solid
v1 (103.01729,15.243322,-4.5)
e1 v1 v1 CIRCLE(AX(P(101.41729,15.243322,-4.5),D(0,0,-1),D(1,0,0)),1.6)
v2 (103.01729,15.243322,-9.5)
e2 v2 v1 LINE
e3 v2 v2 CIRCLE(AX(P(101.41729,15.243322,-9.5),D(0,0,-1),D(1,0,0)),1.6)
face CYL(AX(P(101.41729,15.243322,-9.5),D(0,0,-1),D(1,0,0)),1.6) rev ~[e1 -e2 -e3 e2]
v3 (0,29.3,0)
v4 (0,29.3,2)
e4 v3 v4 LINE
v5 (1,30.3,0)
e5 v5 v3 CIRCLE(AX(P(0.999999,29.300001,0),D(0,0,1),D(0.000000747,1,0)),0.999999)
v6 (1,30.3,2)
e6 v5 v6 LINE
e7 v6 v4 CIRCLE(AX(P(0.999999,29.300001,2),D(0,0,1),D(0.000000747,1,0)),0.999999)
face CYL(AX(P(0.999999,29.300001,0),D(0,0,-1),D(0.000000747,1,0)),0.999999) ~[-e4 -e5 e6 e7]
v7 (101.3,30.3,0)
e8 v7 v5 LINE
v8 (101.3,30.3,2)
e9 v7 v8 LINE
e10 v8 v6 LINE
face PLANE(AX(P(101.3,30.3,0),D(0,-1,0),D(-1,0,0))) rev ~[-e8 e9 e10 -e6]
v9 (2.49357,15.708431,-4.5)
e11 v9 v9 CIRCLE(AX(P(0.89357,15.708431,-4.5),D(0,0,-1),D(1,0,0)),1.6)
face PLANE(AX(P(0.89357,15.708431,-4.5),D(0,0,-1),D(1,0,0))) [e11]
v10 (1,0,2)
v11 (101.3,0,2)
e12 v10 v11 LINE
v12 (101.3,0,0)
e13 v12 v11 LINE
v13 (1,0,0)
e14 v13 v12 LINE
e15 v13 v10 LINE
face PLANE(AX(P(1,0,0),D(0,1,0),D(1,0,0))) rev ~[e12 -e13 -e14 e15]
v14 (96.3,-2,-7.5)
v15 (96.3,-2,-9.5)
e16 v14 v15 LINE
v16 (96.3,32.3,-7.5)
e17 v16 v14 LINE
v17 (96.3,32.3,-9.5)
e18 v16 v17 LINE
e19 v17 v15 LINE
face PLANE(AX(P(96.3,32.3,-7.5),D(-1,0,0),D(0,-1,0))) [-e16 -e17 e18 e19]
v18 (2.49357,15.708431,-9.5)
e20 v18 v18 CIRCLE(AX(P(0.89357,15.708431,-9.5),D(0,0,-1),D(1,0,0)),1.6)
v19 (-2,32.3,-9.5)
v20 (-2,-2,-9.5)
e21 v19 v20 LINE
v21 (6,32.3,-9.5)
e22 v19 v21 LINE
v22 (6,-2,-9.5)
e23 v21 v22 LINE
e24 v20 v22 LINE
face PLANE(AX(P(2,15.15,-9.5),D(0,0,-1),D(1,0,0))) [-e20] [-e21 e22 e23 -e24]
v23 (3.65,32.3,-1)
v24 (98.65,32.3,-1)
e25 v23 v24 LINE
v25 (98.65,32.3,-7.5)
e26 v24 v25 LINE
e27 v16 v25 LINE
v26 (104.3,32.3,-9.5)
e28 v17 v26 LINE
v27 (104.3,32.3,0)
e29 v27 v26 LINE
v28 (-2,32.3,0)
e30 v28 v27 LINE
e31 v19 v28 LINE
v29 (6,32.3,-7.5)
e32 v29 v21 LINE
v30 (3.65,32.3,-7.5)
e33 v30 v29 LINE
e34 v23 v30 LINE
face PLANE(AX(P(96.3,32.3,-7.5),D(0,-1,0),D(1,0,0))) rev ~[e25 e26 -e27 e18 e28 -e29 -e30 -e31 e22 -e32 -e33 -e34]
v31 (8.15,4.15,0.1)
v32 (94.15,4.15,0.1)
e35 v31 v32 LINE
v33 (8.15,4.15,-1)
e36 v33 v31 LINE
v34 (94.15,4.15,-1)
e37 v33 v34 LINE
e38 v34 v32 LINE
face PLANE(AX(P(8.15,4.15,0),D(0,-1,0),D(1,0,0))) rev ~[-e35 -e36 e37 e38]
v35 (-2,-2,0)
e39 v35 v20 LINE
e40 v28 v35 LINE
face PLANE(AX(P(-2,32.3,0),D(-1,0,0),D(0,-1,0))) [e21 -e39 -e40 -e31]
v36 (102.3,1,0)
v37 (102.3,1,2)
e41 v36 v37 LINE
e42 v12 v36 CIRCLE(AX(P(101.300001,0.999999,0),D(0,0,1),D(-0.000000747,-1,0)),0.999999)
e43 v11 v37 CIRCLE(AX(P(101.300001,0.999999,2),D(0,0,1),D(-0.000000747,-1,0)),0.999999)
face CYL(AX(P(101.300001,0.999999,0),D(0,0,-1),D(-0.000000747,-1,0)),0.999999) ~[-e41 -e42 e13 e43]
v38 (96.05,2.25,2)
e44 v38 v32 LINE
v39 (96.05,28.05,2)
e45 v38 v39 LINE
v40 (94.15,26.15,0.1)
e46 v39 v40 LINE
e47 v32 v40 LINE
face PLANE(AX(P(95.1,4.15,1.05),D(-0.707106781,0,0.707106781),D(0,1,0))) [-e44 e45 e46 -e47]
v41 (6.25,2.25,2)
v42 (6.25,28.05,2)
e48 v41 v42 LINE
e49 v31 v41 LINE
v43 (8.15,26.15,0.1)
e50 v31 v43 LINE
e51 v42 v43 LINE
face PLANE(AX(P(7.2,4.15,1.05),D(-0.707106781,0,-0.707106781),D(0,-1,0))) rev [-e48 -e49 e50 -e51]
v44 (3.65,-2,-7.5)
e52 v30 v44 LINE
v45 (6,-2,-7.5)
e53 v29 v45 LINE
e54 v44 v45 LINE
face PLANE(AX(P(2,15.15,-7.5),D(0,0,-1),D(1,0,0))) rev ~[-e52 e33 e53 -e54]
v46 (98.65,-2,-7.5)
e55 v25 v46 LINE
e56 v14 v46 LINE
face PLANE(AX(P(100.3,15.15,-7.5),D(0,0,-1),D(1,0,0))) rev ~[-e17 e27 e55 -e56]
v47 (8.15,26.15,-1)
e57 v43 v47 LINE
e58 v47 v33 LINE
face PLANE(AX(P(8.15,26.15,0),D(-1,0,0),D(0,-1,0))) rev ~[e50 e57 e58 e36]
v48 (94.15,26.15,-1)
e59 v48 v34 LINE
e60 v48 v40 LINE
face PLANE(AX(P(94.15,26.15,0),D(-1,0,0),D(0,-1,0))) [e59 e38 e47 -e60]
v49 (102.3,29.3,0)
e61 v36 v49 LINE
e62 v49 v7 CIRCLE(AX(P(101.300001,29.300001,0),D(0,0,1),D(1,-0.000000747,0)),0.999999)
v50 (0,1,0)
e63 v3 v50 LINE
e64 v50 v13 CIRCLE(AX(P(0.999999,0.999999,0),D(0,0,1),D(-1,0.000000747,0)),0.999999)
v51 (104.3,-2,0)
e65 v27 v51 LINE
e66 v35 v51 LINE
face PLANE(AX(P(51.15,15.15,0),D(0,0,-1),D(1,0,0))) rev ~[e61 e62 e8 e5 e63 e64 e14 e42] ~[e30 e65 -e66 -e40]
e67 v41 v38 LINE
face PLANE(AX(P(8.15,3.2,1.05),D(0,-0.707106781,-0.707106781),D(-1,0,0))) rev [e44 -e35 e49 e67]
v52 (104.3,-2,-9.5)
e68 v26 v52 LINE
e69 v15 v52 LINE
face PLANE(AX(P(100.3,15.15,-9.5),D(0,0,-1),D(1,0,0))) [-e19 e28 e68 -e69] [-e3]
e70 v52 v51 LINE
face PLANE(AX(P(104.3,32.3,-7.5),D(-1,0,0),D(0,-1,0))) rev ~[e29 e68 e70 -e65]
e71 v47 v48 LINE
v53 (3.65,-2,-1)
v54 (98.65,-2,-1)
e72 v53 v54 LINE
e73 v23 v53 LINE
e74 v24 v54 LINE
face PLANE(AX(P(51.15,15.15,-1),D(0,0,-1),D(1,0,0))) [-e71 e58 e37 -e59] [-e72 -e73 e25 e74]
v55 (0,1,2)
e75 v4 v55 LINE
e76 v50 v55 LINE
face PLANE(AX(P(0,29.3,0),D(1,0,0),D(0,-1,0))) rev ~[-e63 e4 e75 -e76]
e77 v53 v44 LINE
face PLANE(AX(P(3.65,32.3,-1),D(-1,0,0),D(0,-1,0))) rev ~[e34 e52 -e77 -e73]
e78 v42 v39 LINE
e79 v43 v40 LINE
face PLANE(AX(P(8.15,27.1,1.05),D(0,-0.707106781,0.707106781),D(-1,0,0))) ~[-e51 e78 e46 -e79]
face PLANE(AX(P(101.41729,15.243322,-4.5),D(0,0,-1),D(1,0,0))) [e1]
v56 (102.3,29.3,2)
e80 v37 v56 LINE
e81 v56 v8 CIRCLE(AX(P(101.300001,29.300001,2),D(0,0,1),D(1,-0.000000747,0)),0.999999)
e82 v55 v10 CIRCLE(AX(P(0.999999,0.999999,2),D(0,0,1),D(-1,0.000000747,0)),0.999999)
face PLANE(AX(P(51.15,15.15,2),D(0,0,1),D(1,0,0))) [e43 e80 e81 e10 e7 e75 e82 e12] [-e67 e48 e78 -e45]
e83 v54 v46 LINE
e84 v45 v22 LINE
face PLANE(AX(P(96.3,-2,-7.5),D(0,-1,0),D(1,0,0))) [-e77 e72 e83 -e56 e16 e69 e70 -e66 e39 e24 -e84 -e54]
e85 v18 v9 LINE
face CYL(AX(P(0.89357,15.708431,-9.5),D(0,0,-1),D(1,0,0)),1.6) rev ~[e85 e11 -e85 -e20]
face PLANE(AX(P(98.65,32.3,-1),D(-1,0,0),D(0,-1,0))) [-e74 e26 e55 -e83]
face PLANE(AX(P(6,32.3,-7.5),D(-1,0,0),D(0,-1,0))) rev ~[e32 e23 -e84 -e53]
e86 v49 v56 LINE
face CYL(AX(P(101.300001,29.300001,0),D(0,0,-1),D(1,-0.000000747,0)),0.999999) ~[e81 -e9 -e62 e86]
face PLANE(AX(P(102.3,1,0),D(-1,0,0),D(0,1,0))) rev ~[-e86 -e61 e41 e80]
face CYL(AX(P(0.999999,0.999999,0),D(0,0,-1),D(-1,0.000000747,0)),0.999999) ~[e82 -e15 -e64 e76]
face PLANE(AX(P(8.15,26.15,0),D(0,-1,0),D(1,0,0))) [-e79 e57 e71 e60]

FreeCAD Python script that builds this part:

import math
import FreeCAD as App
import Part
import Sketcher
Q = App.Units.Quantity


def edges_at(feature, points):
    """Names of the edges that pass closest to the given points."""
    edges = feature.Shape.Edges
    near = lambda p: min(range(len(edges)), key=lambda i: edges[i].distToShape(Part.Vertex(*p))[0])
    return sorted({f"Edge{near(p) + 1}" for p in points})

doc = App.newDocument("Part")
body = doc.addObject("PartDesign::Body", "Body")

# Sketch on XY plane
sketch1 = body.newObject("Sketcher::SketchObject", "Sketch")
sketch1.AttachmentSupport = (doc.getObject("XY_Plane"), [""])
sketch1.MapMode = "FlatFace"
sketch1.addGeometry(Part.LineSegment(App.Vector(1, 0, 0), App.Vector(101.3, 0, 0)), False)
sketch1.addGeometry(Part.ArcOfCircle(Part.Circle(App.Vector(101.3, 1, 0), App.Vector(0, 0, 1), 1), math.radians(-90), math.radians(0)), False)
sketch1.addGeometry(Part.LineSegment(App.Vector(102.3, 1, 0), App.Vector(102.3, 29.3, 0)), False)
sketch1.addGeometry(Part.ArcOfCircle(Part.Circle(App.Vector(101.3, 29.3, 0), App.Vector(0, 0, 1), 1), math.radians(0), math.radians(90)), False)
sketch1.addGeometry(Part.LineSegment(App.Vector(101.3, 30.3, 0), App.Vector(1, 30.3, 0)), False)
sketch1.addGeometry(Part.ArcOfCircle(Part.Circle(App.Vector(1, 29.3, 0), App.Vector(0, 0, 1), 1), math.radians(90), math.radians(180)), False)
sketch1.addGeometry(Part.LineSegment(App.Vector(0, 29.3, 0), App.Vector(0, 1, 0)), False)
sketch1.addGeometry(Part.ArcOfCircle(Part.Circle(App.Vector(1, 1, 0), App.Vector(0, 0, 1), 1), math.radians(180), math.radians(270)), False)
sketch1.addConstraint(Sketcher.Constraint("Tangent", 0, 2, 1, 1))
sketch1.addConstraint(Sketcher.Constraint("Tangent", 1, 2, 2, 1))
sketch1.addConstraint(Sketcher.Constraint("Tangent", 2, 2, 3, 1))
sketch1.addConstraint(Sketcher.Constraint("Tangent", 3, 2, 4, 1))
sketch1.addConstraint(Sketcher.Constraint("Tangent", 4, 2, 5, 1))
sketch1.addConstraint(Sketcher.Constraint("Tangent", 5, 2, 6, 1))
sketch1.addConstraint(Sketcher.Constraint("Tangent", 6, 2, 7, 1))
sketch1.addConstraint(Sketcher.Constraint("Tangent", 7, 2, 0, 1))
sketch1.addConstraint(Sketcher.Constraint("Horizontal", 0))
sketch1.addConstraint(Sketcher.Constraint("Vertical", 2))
sketch1.addConstraint(Sketcher.Constraint("Horizontal", 4))
sketch1.addConstraint(Sketcher.Constraint("Vertical", 6))
sketch1.addConstraint(Sketcher.Constraint("Equal", 1, 3))
sketch1.addConstraint(Sketcher.Constraint("Equal", 3, 5))
sketch1.addConstraint(Sketcher.Constraint("Equal", 5, 7))
sketch1.addConstraint(Sketcher.Constraint("PointOnObject", 0, 2, -1))
sketch1.addConstraint(Sketcher.Constraint("PointOnObject", 5, 2, -2))
sketch1.addConstraint(Sketcher.Constraint("Radius", 1, Q("0.999999 mm")))
sketch1.addConstraint(Sketcher.Constraint("DistanceX", 0, 1, 0, 2, Q("100.3 mm")))
sketch1.addConstraint(Sketcher.Constraint("DistanceY", 2, 1, 2, 2, Q("28.3 mm")))
pad1 = body.newObject("PartDesign::Pad", "Pad")
pad1.Profile = sketch1
pad1.Length = 2

# Sketch on XY plane
sketch2 = body.newObject("Sketcher::SketchObject", "Sketch001")
sketch2.AttachmentSupport = (doc.getObject("XY_Plane"), [""])
sketch2.MapMode = "FlatFace"
sketch2.AttachmentOffset = App.Placement(App.Vector(0, 0, 2), App.Rotation())
sketch2.addGeometry(Part.LineSegment(App.Vector(8, 26, 0), App.Vector(8, 4, 0)), False)
sketch2.addGeometry(Part.LineSegment(App.Vector(8, 4, 0), App.Vector(94, 4, 0)), False)
sketch2.addGeometry(Part.LineSegment(App.Vector(94, 4, 0), App.Vector(94, 26, 0)), False)
sketch2.addGeometry(Part.LineSegment(App.Vector(94, 26, 0), App.Vector(8, 26, 0)), False)
sketch2.addConstraint(Sketcher.Constraint("Coincident", 0, 2, 1, 1))
sketch2.addConstraint(Sketcher.Constraint("Coincident", 1, 2, 2, 1))
sketch2.addConstraint(Sketcher.Constraint("Coincident", 2, 2, 3, 1))
sketch2.addConstraint(Sketcher.Constraint("Coincident", 3, 2, 0, 1))
sketch2.addConstraint(Sketcher.Constraint("Vertical", 0))
sketch2.addConstraint(Sketcher.Constraint("Horizontal", 1))
sketch2.addConstraint(Sketcher.Constraint("Vertical", 2))
sketch2.addConstraint(Sketcher.Constraint("Horizontal", 3))
sketch2.addConstraint(Sketcher.Constraint("DistanceX", 1, 1, 1, 2, Q("86 mm")))
sketch2.addConstraint(Sketcher.Constraint("DistanceY", 0, 2, 0, 1, Q("22 mm")))
sketch2.addConstraint(Sketcher.Constraint("DistanceX", -1, 1, 0, 2, Q("8.15 mm")))
sketch2.addConstraint(Sketcher.Constraint("DistanceY", -1, 1, 0, 2, Q("4.15 mm")))
pocket1 = body.newObject("PartDesign::Pocket", "Pocket")
pocket1.Profile = sketch2
pocket1.Length = 5

# Sketch on XY plane
sketch3 = body.newObject("Sketcher::SketchObject", "Sketch002")
sketch3.AttachmentSupport = (doc.getObject("XY_Plane"), [""])
sketch3.MapMode = "FlatFace"
sketch3.addGeometry(Part.LineSegment(App.Vector(-2, -2, 0), App.Vector(-2, 32, 0)), False)
sketch3.addGeometry(Part.LineSegment(App.Vector(-2, 32, 0), App.Vector(104, 32, 0)), False)
sketch3.addGeometry(Part.LineSegment(App.Vector(104, 32, 0), App.Vector(104, -2, 0)), False)
sketch3.addGeometry(Part.LineSegment(App.Vector(104, -2, 0), App.Vector(-2, -2, 0)), False)
sketch3.addGeometry(Part.LineSegment(App.Vector(94, 26, 0), App.Vector(8, 26, 0)), False)
sketch3.addGeometry(Part.LineSegment(App.Vector(8, 26, 0), App.Vector(8, 4, 0)), False)
sketch3.addGeometry(Part.LineSegment(App.Vector(8, 4, 0), App.Vector(94, 4, 0)), False)
sketch3.addGeometry(Part.LineSegment(App.Vector(94, 4, 0), App.Vector(94, 26, 0)), False)
sketch3.addConstraint(Sketcher.Constraint("Coincident", 0, 2, 1, 1))
sketch3.addConstraint(Sketcher.Constraint("Coincident", 1, 2, 2, 1))
sketch3.addConstraint(Sketcher.Constraint("Coincident", 2, 2, 3, 1))
sketch3.addConstraint(Sketcher.Constraint("Coincident", 3, 2, 0, 1))
sketch3.addConstraint(Sketcher.Constraint("Coincident", 4, 2, 5, 1))
sketch3.addConstraint(Sketcher.Constraint("Coincident", 5, 2, 6, 1))
sketch3.addConstraint(Sketcher.Constraint("Coincident", 6, 2, 7, 1))
sketch3.addConstraint(Sketcher.Constraint("Coincident", 7, 2, 4, 1))
sketch3.addConstraint(Sketcher.Constraint("Vertical", 0))
sketch3.addConstraint(Sketcher.Constraint("Horizontal", 1))
sketch3.addConstraint(Sketcher.Constraint("Vertical", 2))
sketch3.addConstraint(Sketcher.Constraint("Horizontal", 3))
sketch3.addConstraint(Sketcher.Constraint("Horizontal", 4))
sketch3.addConstraint(Sketcher.Constraint("Vertical", 5))
sketch3.addConstraint(Sketcher.Constraint("Horizontal", 6))
sketch3.addConstraint(Sketcher.Constraint("Vertical", 7))
sketch3.addConstraint(Sketcher.Constraint("DistanceX", 4, 2, 4, 1, Q("86 mm")))
sketch3.addConstraint(Sketcher.Constraint("DistanceY", 5, 2, 5, 1, Q("22 mm")))
sketch3.addConstraint(Sketcher.Constraint("DistanceX", 1, 1, 1, 2, Q("106.3 mm")))
sketch3.addConstraint(Sketcher.Constraint("DistanceY", 0, 1, 0, 2, Q("34.3 mm")))
sketch3.addConstraint(Sketcher.Constraint("DistanceX", 0, 2, -1, 1, Q("2 mm")))
sketch3.addConstraint(Sketcher.Constraint("DistanceY", 2, 2, -1, 1, Q("2 mm")))
sketch3.addConstraint(Sketcher.Constraint("DistanceX", -1, 1, 4, 2, Q("8.15 mm")))
sketch3.addConstraint(Sketcher.Constraint("DistanceY", -1, 1, 4, 2, Q("26.15 mm")))
pad2 = body.newObject("PartDesign::Pad", "Pad001")
pad2.Profile = sketch3
pad2.Length = 1
pad2.Reversed = True
doc.recompute()

chamfer = body.newObject("PartDesign::Chamfer", "Chamfer")
chamfer.Base = (pad2, edges_at(pad2, [
    (51.15, 26.15, 2),
    (8.15, 15.15, 2),
    (51.15, 4.15, 2),
    (94.15, 15.15, 2),
]))
chamfer.Size = 1.9

# Sketch on XY plane
sketch4 = body.newObject("Sketcher::SketchObject", "Sketch003")
sketch4.AttachmentSupport = (doc.getObject("XY_Plane"), [""])
sketch4.MapMode = "FlatFace"
sketch4.AttachmentOffset = App.Placement(App.Vector(0, 0, -1), App.Rotation())
sketch4.addGeometry(Part.LineSegment(App.Vector(99, -2, 0), App.Vector(99, 32, 0)), False)
sketch4.addGeometry(Part.LineSegment(App.Vector(99, 32, 0), App.Vector(104, 32, 0)), False)
sketch4.addGeometry(Part.LineSegment(App.Vector(104, 32, 0), App.Vector(104, -2, 0)), False)
sketch4.addGeometry(Part.LineSegment(App.Vector(104, -2, 0), App.Vector(99, -2, 0)), False)
sketch4.addGeometry(Part.LineSegment(App.Vector(-2, -2, 0), App.Vector(-2, 32, 0)), False)
sketch4.addGeometry(Part.LineSegment(App.Vector(-2, 32, 0), App.Vector(4, 32, 0)), False)
sketch4.addGeometry(Part.LineSegment(App.Vector(4, 32, 0), App.Vector(4, -2, 0)), False)
sketch4.addGeometry(Part.LineSegment(App.Vector(4, -2, 0), App.Vector(-2, -2, 0)), False)
sketch4.addConstraint(Sketcher.Constraint("Coincident", 0, 2, 1, 1))
sketch4.addConstraint(Sketcher.Constraint("Coincident", 1, 2, 2, 1))
sketch4.addConstraint(Sketcher.Constraint("Coincident", 2, 2, 3, 1))
sketch4.addConstraint(Sketcher.Constraint("Coincident", 3, 2, 0, 1))
sketch4.addConstraint(Sketcher.Constraint("Coincident", 4, 2, 5, 1))
sketch4.addConstraint(Sketcher.Constraint("Coincident", 5, 2, 6, 1))
sketch4.addConstraint(Sketcher.Constraint("Coincident", 6, 2, 7, 1))
sketch4.addConstraint(Sketcher.Constraint("Coincident", 7, 2, 4, 1))
sketch4.addConstraint(Sketcher.Constraint("Vertical", 0))
sketch4.addConstraint(Sketcher.Constraint("Horizontal", 1))
sketch4.addConstraint(Sketcher.Constraint("Vertical", 2))
sketch4.addConstraint(Sketcher.Constraint("Horizontal", 3))
sketch4.addConstraint(Sketcher.Constraint("Vertical", 4))
sketch4.addConstraint(Sketcher.Constraint("Horizontal", 5))
sketch4.addConstraint(Sketcher.Constraint("Vertical", 6))
sketch4.addConstraint(Sketcher.Constraint("Horizontal", 7))
sketch4.addConstraint(Sketcher.Constraint("Horizontal", 1, 2, 4, 2))
sketch4.addConstraint(Sketcher.Constraint("Horizontal", 3, 2, 6, 2))
sketch4.addConstraint(Sketcher.Constraint("Equal", 3, 5))
sketch4.addConstraint(Sketcher.Constraint("DistanceY", 0, 1, 0, 2, Q("34.3 mm")))
sketch4.addConstraint(Sketcher.Constraint("DistanceY", 2, 2, -1, 1, Q("2 mm")))
sketch4.addConstraint(Sketcher.Constraint("DistanceX", 4, 2, -1, 1, Q("2 mm")))
sketch4.addConstraint(Sketcher.Constraint("DistanceX", 5, 2, 0, 2, Q("95 mm")))
sketch4.addConstraint(Sketcher.Constraint("DistanceX", 1, 1, 1, 2, Q("5.65 mm")))
pad3 = body.newObject("PartDesign::Pad", "Pad002")
pad3.Profile = sketch4
pad3.Length = 6.5
pad3.Reversed = True

# Sketch on XY plane
sketch5 = body.newObject("Sketcher::SketchObject", "Sketch004")
sketch5.AttachmentSupport = (doc.getObject("XY_Plane"), [""])
sketch5.MapMode = "FlatFace"
sketch5.AttachmentOffset = App.Placement(App.Vector(0, 0, -7.5), App.Rotation())
sketch5.addGeometry(Part.LineSegment(App.Vector(96, -2, 0), App.Vector(96, 32, 0)), False)
sketch5.addGeometry(Part.LineSegment(App.Vector(96, 32, 0), App.Vector(104, 32, 0)), False)
sketch5.addGeometry(Part.LineSegment(App.Vector(104, 32, 0), App.Vector(104, -2, 0)), False)
sketch5.addGeometry(Part.LineSegment(App.Vector(104, -2, 0), App.Vector(96, -2, 0)), False)
sketch5.addGeometry(Part.LineSegment(App.Vector(-2, -2, 0), App.Vector(-2, 32, 0)), False)
sketch5.addGeometry(Part.LineSegment(App.Vector(-2, 32, 0), App.Vector(6, 32, 0)), False)
sketch5.addGeometry(Part.LineSegment(App.Vector(6, 32, 0), App.Vector(6, -2, 0)), False)
sketch5.addGeometry(Part.LineSegment(App.Vector(6, -2, 0), App.Vector(-2, -2, 0)), False)
sketch5.addConstraint(Sketcher.Constraint("Coincident", 0, 2, 1, 1))
sketch5.addConstraint(Sketcher.Constraint("Coincident", 1, 2, 2, 1))
sketch5.addConstraint(Sketcher.Constraint("Coincident", 2, 2, 3, 1))
sketch5.addConstraint(Sketcher.Constraint("Coincident", 3, 2, 0, 1))
sketch5.addConstraint(Sketcher.Constraint("Coincident", 4, 2, 5, 1))
sketch5.addConstraint(Sketcher.Constraint("Coincident", 5, 2, 6, 1))
sketch5.addConstraint(Sketcher.Constraint("Coincident", 6, 2, 7, 1))
sketch5.addConstraint(Sketcher.Constraint("Coincident", 7, 2, 4, 1))
sketch5.addConstraint(Sketcher.Constraint("Vertical", 0))
sketch5.addConstraint(Sketcher.Constraint("Horizontal", 1))
sketch5.addConstraint(Sketcher.Constraint("Vertical", 2))
sketch5.addConstraint(Sketcher.Constraint("Horizontal", 3))
sketch5.addConstraint(Sketcher.Constraint("Vertical", 4))
sketch5.addConstraint(Sketcher.Constraint("Horizontal", 5))
sketch5.addConstraint(Sketcher.Constraint("Vertical", 6))
sketch5.addConstraint(Sketcher.Constraint("Horizontal", 7))
sketch5.addConstraint(Sketcher.Constraint("Horizontal", 1, 2, 4, 2))
sketch5.addConstraint(Sketcher.Constraint("Horizontal", 3, 2, 6, 2))
sketch5.addConstraint(Sketcher.Constraint("Equal", 3, 5))
sketch5.addConstraint(Sketcher.Constraint("DistanceX", 1, 1, 1, 2, Q("8 mm")))
sketch5.addConstraint(Sketcher.Constraint("DistanceY", 0, 1, 0, 2, Q("34.3 mm")))
sketch5.addConstraint(Sketcher.Constraint("DistanceY", 2, 2, -1, 1, Q("2 mm")))
sketch5.addConstraint(Sketcher.Constraint("DistanceX", 4, 2, -1, 1, Q("2 mm")))
sketch5.addConstraint(Sketcher.Constraint("DistanceX", -1, 1, 0, 2, Q("96.3 mm")))
pad4 = body.newObject("PartDesign::Pad", "Pad003")
pad4.Profile = sketch5
pad4.Length = 2
pad4.Reversed = True

# Sketch on XY plane
sketch6 = body.newObject("Sketcher::SketchObject", "Sketch005")
sketch6.AttachmentSupport = (doc.getObject("XY_Plane"), [""])
sketch6.MapMode = "FlatFace"
sketch6.AttachmentOffset = App.Placement(App.Vector(0, 0, -9.5), App.Rotation())
sketch6.addGeometry(Part.Circle(App.Vector(0.9, 15.7, 0), App.Vector(0, 0, 1), 1.6), False)
sketch6.addGeometry(Part.Circle(App.Vector(101.4, 15.2, 0), App.Vector(0, 0, 1), 1.6), False)
sketch6.addConstraint(Sketcher.Constraint("Equal", 0, 1))
sketch6.addConstraint(Sketcher.Constraint("Diameter", 0, Q("3.2 mm")))
sketch6.addConstraint(Sketcher.Constraint("DistanceX", -1, 1, 0, 3, Q("0.89357 mm")))
sketch6.addConstraint(Sketcher.Constraint("DistanceY", -1, 1, 0, 3, Q("15.708431 mm")))
sketch6.addConstraint(Sketcher.Constraint("DistanceX", -1, 1, 1, 3, Q("101.41729 mm")))
sketch6.addConstraint(Sketcher.Constraint("DistanceY", -1, 1, 1, 3, Q("15.243322 mm")))
pocket2 = body.newObject("PartDesign::Pocket", "Pocket001")
pocket2.Profile = sketch6
pocket2.Length = 5
pocket2.Reversed = True

doc.recompute()
